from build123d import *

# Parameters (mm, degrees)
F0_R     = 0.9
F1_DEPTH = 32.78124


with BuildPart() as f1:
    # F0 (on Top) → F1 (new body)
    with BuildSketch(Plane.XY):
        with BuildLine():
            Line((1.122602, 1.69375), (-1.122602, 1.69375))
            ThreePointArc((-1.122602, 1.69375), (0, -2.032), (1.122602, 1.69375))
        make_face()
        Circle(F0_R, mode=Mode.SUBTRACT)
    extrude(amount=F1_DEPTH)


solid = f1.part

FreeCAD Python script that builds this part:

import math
import FreeCAD as App
import Part
import Sketcher

V = App.Vector
Q = App.Units.Quantity

doc = App.newDocument("Part")
body = doc.addObject("PartDesign::Body", "Body")

# Sketch on XY plane
sketch1 = doc.addObject("Sketcher::SketchObject", "Sketch")
body.addObject(sketch1)
sketch1.AttachmentSupport = (doc.XY_Plane, [""])
sketch1.MapMode = "FlatFace"
sketch1.addGeometry(Part.LineSegment(V(1.1, 1.7, 0), V(-1.1, 1.7, 0)), False)
sketch1.addGeometry(Part.ArcOfCircle(Part.Circle(V(0, 0, 0), V(0, 0, 1), 2), math.radians(124), math.radians(416)), False)
sketch1.addGeometry(Part.Circle(V(0, 0, 0), V(0, 0, 1), 0.9), False)
sketch1.addConstraint(Sketcher.Constraint("Coincident", 0, 1, 1, 2))
sketch1.addConstraint(Sketcher.Constraint("Coincident", 1, 1, 0, 2))
sketch1.addConstraint(Sketcher.Constraint("Horizontal", 0))
sketch1.addConstraint(Sketcher.Constraint("Coincident", 1, 3, -1, 1))
sketch1.addConstraint(Sketcher.Constraint("Coincident", 2, 3, -1, 1))
sketch1.addConstraint(Sketcher.Constraint("Diameter", 2, Q("1.8 mm")))
sketch1.addConstraint(Sketcher.Constraint("Radius", 1, Q("2.032 mm")))
sketch1.addConstraint(Sketcher.Constraint("DistanceX", 0, 2, 0, 1, Q("2.245204 mm")))
pad1 = doc.addObject("PartDesign::Pad", "Pad")
body.addObject(pad1)
pad1.Profile = sketch1
pad1.Length = 32.78124

doc.recompute()
